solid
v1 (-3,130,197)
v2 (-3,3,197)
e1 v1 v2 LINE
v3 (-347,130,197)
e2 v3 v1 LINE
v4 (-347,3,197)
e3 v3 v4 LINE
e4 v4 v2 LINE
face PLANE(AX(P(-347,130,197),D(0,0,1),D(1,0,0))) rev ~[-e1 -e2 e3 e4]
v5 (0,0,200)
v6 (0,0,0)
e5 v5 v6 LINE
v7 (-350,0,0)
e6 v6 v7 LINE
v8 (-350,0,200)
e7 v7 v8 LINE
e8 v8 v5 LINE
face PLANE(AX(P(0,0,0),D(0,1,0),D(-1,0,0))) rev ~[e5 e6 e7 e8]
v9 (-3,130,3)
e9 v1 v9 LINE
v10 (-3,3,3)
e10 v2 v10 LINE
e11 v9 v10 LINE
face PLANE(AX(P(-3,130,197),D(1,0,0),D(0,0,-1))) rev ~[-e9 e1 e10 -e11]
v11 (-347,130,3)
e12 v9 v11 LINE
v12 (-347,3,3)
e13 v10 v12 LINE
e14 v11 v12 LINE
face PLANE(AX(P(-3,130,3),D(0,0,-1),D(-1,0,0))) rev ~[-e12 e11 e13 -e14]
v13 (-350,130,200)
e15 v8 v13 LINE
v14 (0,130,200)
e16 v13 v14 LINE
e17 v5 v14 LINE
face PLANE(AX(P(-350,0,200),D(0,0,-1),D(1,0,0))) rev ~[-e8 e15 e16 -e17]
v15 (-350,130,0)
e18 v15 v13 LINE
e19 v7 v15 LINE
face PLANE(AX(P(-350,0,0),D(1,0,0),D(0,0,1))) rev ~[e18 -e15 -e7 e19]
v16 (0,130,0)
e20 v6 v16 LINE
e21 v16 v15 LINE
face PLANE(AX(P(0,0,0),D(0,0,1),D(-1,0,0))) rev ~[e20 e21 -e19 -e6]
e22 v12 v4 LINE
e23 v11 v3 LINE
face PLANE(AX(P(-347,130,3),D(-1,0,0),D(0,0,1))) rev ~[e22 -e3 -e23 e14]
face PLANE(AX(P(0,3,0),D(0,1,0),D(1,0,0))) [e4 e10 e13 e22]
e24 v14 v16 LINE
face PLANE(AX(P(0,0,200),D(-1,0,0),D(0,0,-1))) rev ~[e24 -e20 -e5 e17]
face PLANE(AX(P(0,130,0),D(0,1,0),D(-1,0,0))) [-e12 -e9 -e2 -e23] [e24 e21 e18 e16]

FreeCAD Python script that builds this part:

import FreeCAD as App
import Part
import Sketcher

V = App.Vector

doc = App.newDocument("Part")
body = doc.addObject("PartDesign::Body", "Body")

# Sketch on XZ plane
sketch1 = body.newObject("Sketcher::SketchObject", "Sketch")
sketch1.AttachmentSupport = (doc.getObject("XZ_Plane"), [""])
sketch1.MapMode = "FlatFace"
sketch1.addGeometry([
    Part.LineSegment(V(0, 200, 0), V(0, 0, 0)),
    Part.LineSegment(V(0, 0, 0), V(-350, 0, 0)),
    Part.LineSegment(V(-350, 0, 0), V(-350, 200, 0)),
    Part.LineSegment(V(-350, 200, 0), V(0, 200, 0)),
], False)
sketch1.addConstraint([
    Sketcher.Constraint("Coincident", 0, 2, 1, 1),
    Sketcher.Constraint("Coincident", 1, 2, 2, 1),
    Sketcher.Constraint("Coincident", 2, 2, 3, 1),
    Sketcher.Constraint("Coincident", 3, 2, 0, 1),
    Sketcher.Constraint("Vertical", 0),
    Sketcher.Constraint("Horizontal", 1),
    Sketcher.Constraint("Vertical", 2),
    Sketcher.Constraint("Horizontal", 3),
    Sketcher.Constraint("Coincident", 0, 2, -1, 1),
    Sketcher.Constraint("DistanceX", 1, 2, 1, 1, 350.0),
    Sketcher.Constraint("DistanceY", 0, 2, 0, 1, 200.0),
])
pad1 = body.newObject("PartDesign::Pad", "Pad")
pad1.Profile = sketch1
pad1.Length = 130
pad1.Reversed = True

# Sketch on XZ plane
sketch2 = body.newObject("Sketcher::SketchObject", "Sketch001")
sketch2.AttachmentSupport = (doc.getObject("XZ_Plane"), [""])
sketch2.MapMode = "FlatFace"
sketch2.AttachmentOffset = App.Placement(V(0, 0, -130), App.Rotation())
sketch2.addGeometry([
    Part.LineSegment(V(-3, 197, 0), V(-3, 3, 0)),
    Part.LineSegment(V(-3, 3, 0), V(-347, 3, 0)),
    Part.LineSegment(V(-347, 3, 0), V(-347, 197, 0)),
    Part.LineSegment(V(-347, 197, 0), V(-3, 197, 0)),
], False)
sketch2.addConstraint([
    Sketcher.Constraint("Coincident", 0, 2, 1, 1),
    Sketcher.Constraint("Coincident", 1, 2, 2, 1),
    Sketcher.Constraint("Coincident", 2, 2, 3, 1),
    Sketcher.Constraint("Coincident", 3, 2, 0, 1),
    Sketcher.Constraint("Vertical", 0),
    Sketcher.Constraint("Horizontal", 1),
    Sketcher.Constraint("Vertical", 2),
    Sketcher.Constraint("Horizontal", 3),
    Sketcher.Constraint("DistanceX", 1, 2, 1, 1, 344.0),
    Sketcher.Constraint("DistanceY", 0, 2, 0, 1, 194.0),
    Sketcher.Constraint("DistanceX", 0, 2, -1, 1, 3.0),
    Sketcher.Constraint("DistanceY", -1, 1, 0, 2, 3.0),
])
pocket1 = body.newObject("PartDesign::Pocket", "Pocket")
pocket1.Profile = sketch2
pocket1.Length = 127
pocket1.Reversed = True

doc.recompute()
